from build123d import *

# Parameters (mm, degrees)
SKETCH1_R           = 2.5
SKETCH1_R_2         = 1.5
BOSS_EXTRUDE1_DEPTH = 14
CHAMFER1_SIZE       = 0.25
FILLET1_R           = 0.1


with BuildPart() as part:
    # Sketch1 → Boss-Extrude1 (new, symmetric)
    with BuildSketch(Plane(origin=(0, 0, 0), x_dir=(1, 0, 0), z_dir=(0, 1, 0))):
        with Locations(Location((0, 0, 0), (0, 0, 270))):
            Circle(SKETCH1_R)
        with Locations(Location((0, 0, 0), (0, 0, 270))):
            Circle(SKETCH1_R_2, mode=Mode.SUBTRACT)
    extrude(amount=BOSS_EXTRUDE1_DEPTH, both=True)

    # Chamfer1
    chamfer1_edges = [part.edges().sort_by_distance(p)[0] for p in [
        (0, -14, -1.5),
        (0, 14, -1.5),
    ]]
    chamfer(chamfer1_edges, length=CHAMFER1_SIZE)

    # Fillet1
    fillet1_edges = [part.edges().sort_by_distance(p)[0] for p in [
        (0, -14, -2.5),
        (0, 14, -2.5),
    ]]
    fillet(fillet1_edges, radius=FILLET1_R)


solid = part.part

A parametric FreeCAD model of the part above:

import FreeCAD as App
import Part
import Sketcher
from FreeCAD import Vector
Q = App.Units.Quantity


def edges_at(feature, points):
    """Names of the edges that pass closest to the given points."""
    edges = feature.Shape.Edges
    near = lambda p: min(range(len(edges)), key=lambda i: edges[i].distToShape(Part.Vertex(*p))[0])
    return sorted({f"Edge{near(p) + 1}" for p in points})

doc = App.newDocument("Part")
params = doc.addObject("Spreadsheet::Sheet", "Params")
for row, (alias, value) in enumerate([
    ("sketch1_diameter", "5 mm"),
    ("sketch1_diameter2", "3 mm"),
    ("pad1_length", "28 mm"),
    ("chamfer_size", "0.25 mm"),
    ("fillet_radius", "0.1 mm"),
], start=1):
    params.set(f"A{row}", alias)
    params.set(f"B{row}", "=" + value)
    params.setAlias(f"B{row}", alias)

body = doc.addObject("PartDesign::Body", "Body")

# Sketch on XZ plane
sketch1 = body.newObject("Sketcher::SketchObject", "Sketch")
sketch1.AttachmentSupport = (doc.getObject("XZ_Plane"), [""])
sketch1.MapMode = "FlatFace"
sketch1.addGeometry(Part.Circle(Vector(0, 0, 0), Vector(0, 0, 1), 2.5), False)
sketch1.addGeometry(Part.Circle(Vector(0, 0, 0), Vector(0, 0, 1), 1.5), False)
sketch1.addConstraint(Sketcher.Constraint("Coincident", 0, 3, -1, 1))
sketch1.addConstraint(Sketcher.Constraint("Coincident", 1, 3, -1, 1))
sketch1.addConstraint(Sketcher.Constraint("Diameter", 0, Q("5 mm")))
sketch1.addConstraint(Sketcher.Constraint("Diameter", 1, Q("3 mm")))
sketch1.setExpression("Constraints[2]", "Params.sketch1_diameter")
sketch1.setExpression("Constraints[3]", "Params.sketch1_diameter2")
pad1 = body.newObject("PartDesign::Pad", "Pad")
pad1.Profile = sketch1
pad1.setExpression("Length", "Params.pad1_length")
pad1.Midplane = True
doc.recompute()

chamfer = body.newObject("PartDesign::Chamfer", "Chamfer")
chamfer.Base = (pad1, edges_at(pad1, [(0, -14, -1.5), (0, 14, -1.5)]))
chamfer.setExpression("Size", "Params.chamfer_size")
doc.recompute()

fillet = body.newObject("PartDesign::Fillet", "Fillet")
fillet.Base = (chamfer, edges_at(chamfer, [(0, -14, -2.5), (0, 14, -2.5)]))
fillet.setExpression("Radius", "Params.fillet_radius")

doc.recompute()
